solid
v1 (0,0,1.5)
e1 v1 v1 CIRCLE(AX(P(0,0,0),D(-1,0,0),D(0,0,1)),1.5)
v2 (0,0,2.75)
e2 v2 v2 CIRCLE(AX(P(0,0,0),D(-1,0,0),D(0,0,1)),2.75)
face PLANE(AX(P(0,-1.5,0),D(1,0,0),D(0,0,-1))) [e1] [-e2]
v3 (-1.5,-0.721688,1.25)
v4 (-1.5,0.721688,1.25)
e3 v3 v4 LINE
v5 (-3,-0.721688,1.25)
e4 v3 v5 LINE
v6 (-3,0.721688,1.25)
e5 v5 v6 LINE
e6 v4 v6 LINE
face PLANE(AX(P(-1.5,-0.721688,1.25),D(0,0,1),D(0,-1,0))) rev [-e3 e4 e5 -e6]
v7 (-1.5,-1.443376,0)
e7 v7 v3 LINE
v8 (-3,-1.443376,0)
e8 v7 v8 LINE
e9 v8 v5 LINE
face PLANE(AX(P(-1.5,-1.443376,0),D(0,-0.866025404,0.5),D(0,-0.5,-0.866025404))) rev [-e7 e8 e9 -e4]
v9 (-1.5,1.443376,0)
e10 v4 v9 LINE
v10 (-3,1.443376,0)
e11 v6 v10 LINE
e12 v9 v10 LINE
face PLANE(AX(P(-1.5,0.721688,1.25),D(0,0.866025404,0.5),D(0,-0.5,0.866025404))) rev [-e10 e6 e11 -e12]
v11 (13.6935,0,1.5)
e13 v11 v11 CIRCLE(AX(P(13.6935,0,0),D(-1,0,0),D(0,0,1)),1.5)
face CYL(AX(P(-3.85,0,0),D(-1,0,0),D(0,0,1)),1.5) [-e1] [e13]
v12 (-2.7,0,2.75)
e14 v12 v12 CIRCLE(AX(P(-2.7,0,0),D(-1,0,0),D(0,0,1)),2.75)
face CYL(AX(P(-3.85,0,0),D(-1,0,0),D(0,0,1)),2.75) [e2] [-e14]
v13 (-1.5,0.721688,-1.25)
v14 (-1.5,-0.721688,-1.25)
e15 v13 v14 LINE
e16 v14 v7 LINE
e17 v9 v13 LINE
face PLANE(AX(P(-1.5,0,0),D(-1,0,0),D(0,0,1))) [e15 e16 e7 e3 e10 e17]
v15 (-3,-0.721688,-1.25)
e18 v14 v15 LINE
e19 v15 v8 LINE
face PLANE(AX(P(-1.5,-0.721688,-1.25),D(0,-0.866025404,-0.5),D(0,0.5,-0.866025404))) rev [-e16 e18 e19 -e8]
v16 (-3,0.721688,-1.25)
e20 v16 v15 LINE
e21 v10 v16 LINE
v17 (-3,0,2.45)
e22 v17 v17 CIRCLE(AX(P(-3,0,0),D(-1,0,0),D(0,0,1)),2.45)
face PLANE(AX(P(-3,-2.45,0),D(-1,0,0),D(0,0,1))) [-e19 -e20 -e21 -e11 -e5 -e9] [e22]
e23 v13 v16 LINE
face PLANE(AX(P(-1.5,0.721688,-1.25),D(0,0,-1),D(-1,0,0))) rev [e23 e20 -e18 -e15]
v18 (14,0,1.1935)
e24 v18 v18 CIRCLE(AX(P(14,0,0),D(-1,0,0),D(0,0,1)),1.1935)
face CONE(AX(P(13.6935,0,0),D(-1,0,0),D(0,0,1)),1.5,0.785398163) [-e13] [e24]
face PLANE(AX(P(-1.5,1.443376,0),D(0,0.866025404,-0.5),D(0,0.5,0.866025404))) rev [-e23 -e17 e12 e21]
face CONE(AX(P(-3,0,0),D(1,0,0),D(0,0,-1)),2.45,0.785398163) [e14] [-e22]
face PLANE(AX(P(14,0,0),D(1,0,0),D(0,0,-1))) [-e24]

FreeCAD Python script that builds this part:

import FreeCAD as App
import Part
import Sketcher
from FreeCAD import Vector
Q = App.Units.Quantity

doc = App.newDocument("Part")
body = doc.addObject("PartDesign::Body", "Body")

sketch1 = body.newObject("Sketcher::SketchObject", "Sketch")
sketch1.AttachmentSupport = (doc.getObject("XY_Plane"), [""])
sketch1.MapMode = "FlatFace"
sketch1.addGeometry([
    Part.LineSegment(Vector(14, 0, 0), Vector(-3, 0, 0)),
    Part.LineSegment(Vector(-3, 0, 0), Vector(-3, -2.45, 0)),
    Part.LineSegment(Vector(-3, -2.45, 0), Vector(-2.7, -2.75, 0)),
    Part.LineSegment(Vector(-2.7, -2.75, 0), Vector(0, -2.75, 0)),
    Part.LineSegment(Vector(0, -2.75, 0), Vector(0, -1.5, 0)),
    Part.LineSegment(Vector(0, -1.5, 0), Vector(13.69, -1.5, 0)),
    Part.LineSegment(Vector(13.69, -1.5, 0), Vector(14, -1.19, 0)),
    Part.LineSegment(Vector(14, -1.19, 0), Vector(14, 0, 0)),
], False)
sketch1.addConstraint([
    Sketcher.Constraint("Coincident", 0, 2, 1, 1),
    Sketcher.Constraint("Coincident", 1, 2, 2, 1),
    Sketcher.Constraint("Coincident", 2, 2, 3, 1),
    Sketcher.Constraint("Coincident", 3, 2, 4, 1),
    Sketcher.Constraint("Coincident", 4, 2, 5, 1),
    Sketcher.Constraint("Coincident", 5, 2, 6, 1),
    Sketcher.Constraint("Coincident", 6, 2, 7, 1),
    Sketcher.Constraint("Coincident", 7, 2, 0, 1),
    Sketcher.Constraint("Horizontal", 0),
    Sketcher.Constraint("Vertical", 1),
    Sketcher.Constraint("Horizontal", 3),
    Sketcher.Constraint("Vertical", 4),
    Sketcher.Constraint("Horizontal", 5),
    Sketcher.Constraint("Vertical", 7),
    Sketcher.Constraint("PointOnObject", 0, 2, -1),
    Sketcher.Constraint("PointOnObject", 3, 2, -2),
    Sketcher.Constraint("Perpendicular", 2, 6),
    Sketcher.Constraint("DistanceX", 0, 2, 0, 1, 17.0),
    Sketcher.Constraint("Angle", 2, Q("-45 deg")),
    Sketcher.Constraint("DistanceX", 3, 1, 3, 2, 2.7),
    Sketcher.Constraint("DistanceX", 0, 2, -1, 1, 3.0),
    Sketcher.Constraint("DistanceY", 1, 2, 1, 1, 2.45),
    Sketcher.Constraint("DistanceY", 4, 1, 4, 2, 1.25),
    Sketcher.Constraint("DistanceX", 5, 1, 5, 2, 13.6935),
])
revolution = body.newObject("PartDesign::Revolution", "Revolution")
revolution.Profile = sketch1
revolution.ReferenceAxis = (sketch1, ["H_Axis"])
revolution.Angle = 360

sketch2 = body.newObject("Sketcher::SketchObject", "Sketch001")
sketch2.AttachmentSupport = (doc.getObject("YZ_Plane"), [""])
sketch2.MapMode = "FlatFace"
sketch2.AttachmentOffset = App.Placement(Vector(0, 0, -3), App.Rotation())
sketch2.addGeometry([
    Part.LineSegment(Vector(1.4, 0, 0), Vector(0.7, -1.2, 0)),
    Part.LineSegment(Vector(0.7, -1.2, 0), Vector(-0.7, -1.2, 0)),
    Part.LineSegment(Vector(-0.7, -1.2, 0), Vector(-1.4, 0, 0)),
    Part.LineSegment(Vector(-1.4, 0, 0), Vector(-0.7, 1.2, 0)),
    Part.LineSegment(Vector(-0.7, 1.2, 0), Vector(0.7, 1.2, 0)),
    Part.LineSegment(Vector(0.7, 1.2, 0), Vector(1.4, 0, 0)),
], False)
sketch2.addConstraint([
    Sketcher.Constraint("Coincident", 0, 2, 1, 1),
    Sketcher.Constraint("Coincident", 1, 2, 2, 1),
    Sketcher.Constraint("Coincident", 2, 2, 3, 1),
    Sketcher.Constraint("Coincident", 3, 2, 4, 1),
    Sketcher.Constraint("Coincident", 4, 2, 5, 1),
    Sketcher.Constraint("Coincident", 5, 2, 0, 1),
    Sketcher.Constraint("Horizontal", 1),
    Sketcher.Constraint("Horizontal", 4),
    Sketcher.Constraint("Symmetric", 0, 2, 3, 2, -1, 1),
    Sketcher.Constraint("Symmetric", 2, 2, 5, 2, -1, 1),
    Sketcher.Constraint("PointOnObject", 2, 2, -1),
    Sketcher.Constraint("Parallel", 2, 5),
    Sketcher.Constraint("Vertical", 1, 2, 3, 2),
    Sketcher.Constraint("Angle", 0, Q("-120 deg")),
    Sketcher.Constraint("DistanceY", 1, 2, 3, 2, 2.5),
    Sketcher.Constraint("DistanceX", 1, 2, 1, 1, 1.443376),
])
pocket1 = body.newObject("PartDesign::Pocket", "Pocket")
pocket1.Profile = sketch2
pocket1.Length = 1.5
pocket1.Reversed = True

doc.recompute()
